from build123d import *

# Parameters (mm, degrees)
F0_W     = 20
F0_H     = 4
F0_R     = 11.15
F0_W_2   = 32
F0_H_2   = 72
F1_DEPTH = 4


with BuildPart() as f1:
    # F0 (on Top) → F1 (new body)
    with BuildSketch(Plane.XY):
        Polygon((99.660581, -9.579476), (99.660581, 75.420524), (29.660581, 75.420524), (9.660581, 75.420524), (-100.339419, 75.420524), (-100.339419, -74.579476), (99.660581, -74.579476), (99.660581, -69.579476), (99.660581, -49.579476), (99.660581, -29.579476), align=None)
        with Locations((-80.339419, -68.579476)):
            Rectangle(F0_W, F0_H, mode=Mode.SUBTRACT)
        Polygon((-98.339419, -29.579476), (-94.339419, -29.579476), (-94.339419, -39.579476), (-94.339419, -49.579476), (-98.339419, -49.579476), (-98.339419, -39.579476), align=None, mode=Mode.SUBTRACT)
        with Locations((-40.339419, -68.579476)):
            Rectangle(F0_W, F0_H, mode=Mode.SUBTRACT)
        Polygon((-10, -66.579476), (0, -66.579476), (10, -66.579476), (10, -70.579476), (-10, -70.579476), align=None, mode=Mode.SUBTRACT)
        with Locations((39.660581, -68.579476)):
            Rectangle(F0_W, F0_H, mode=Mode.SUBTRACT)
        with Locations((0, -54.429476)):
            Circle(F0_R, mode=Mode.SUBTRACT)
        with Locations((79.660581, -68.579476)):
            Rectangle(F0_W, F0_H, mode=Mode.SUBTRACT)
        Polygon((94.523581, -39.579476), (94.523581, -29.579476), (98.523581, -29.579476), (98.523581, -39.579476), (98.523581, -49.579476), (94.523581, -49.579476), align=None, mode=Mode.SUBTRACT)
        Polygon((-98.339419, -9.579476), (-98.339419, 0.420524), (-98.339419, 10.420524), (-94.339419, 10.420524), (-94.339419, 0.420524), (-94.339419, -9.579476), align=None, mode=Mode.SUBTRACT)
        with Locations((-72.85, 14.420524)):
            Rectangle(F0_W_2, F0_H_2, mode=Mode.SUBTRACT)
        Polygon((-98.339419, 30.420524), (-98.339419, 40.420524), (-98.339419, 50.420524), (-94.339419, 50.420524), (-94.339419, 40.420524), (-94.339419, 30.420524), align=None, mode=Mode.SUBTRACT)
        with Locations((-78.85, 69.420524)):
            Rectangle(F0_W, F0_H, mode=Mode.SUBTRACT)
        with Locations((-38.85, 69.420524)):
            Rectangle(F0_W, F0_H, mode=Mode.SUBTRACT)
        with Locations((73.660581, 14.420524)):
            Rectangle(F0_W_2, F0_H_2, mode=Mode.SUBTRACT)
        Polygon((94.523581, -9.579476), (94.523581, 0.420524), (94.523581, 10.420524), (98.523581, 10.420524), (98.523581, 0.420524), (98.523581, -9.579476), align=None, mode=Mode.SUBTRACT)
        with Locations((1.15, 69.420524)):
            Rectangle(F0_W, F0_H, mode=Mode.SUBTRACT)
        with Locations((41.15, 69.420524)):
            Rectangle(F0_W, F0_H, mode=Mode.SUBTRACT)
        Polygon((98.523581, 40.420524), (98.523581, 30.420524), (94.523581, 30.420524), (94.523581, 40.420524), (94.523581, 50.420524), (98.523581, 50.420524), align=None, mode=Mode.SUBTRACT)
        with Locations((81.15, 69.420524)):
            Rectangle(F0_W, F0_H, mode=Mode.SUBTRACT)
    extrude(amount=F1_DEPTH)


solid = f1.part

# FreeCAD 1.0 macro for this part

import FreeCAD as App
import Part
import Sketcher

V = App.Vector
Q = App.Units.Quantity

doc = App.newDocument("Part")
body = doc.addObject("PartDesign::Body", "Body")

sketch1 = body.newObject("Sketcher::SketchObject", "Sketch")
sketch1.AttachmentSupport = (doc.getObject("XY_Plane"), [""])
sketch1.MapMode = "FlatFace"
sketch1.addGeometry([
    Part.LineSegment(V(99.7, 75.4, 0), V(-100.3, 75.4, 0)),
    Part.LineSegment(V(-100.3, 75.4, 0), V(-100.3, -74.6, 0)),
    Part.LineSegment(V(-100.3, -74.6, 0), V(99.7, -74.6, 0)),
    Part.LineSegment(V(99.7, -74.6, 0), V(99.7, 75.4, 0)),
    Part.LineSegment(V(-70.3, -70.6, 0), V(-90.3, -70.6, 0)),
    Part.LineSegment(V(-90.3, -70.6, 0), V(-90.3, -66.6, 0)),
    Part.LineSegment(V(-90.3, -66.6, 0), V(-70.3, -66.6, 0)),
    Part.LineSegment(V(-70.3, -66.6, 0), V(-70.3, -70.6, 0)),
    Part.LineSegment(V(-98.3, -49.6, 0), V(-98.3, -29.6, 0)),
    Part.LineSegment(V(-98.3, -29.6, 0), V(-94.3, -29.6, 0)),
    Part.LineSegment(V(-94.3, -29.6, 0), V(-94.3, -49.6, 0)),
    Part.LineSegment(V(-94.3, -49.6, 0), V(-98.3, -49.6, 0)),
    Part.LineSegment(V(-30.3, -70.6, 0), V(-50.3, -70.6, 0)),
    Part.LineSegment(V(-50.3, -70.6, 0), V(-50.3, -66.6, 0)),
    Part.LineSegment(V(-50.3, -66.6, 0), V(-30.3, -66.6, 0)),
    Part.LineSegment(V(-30.3, -66.6, 0), V(-30.3, -70.6, 0)),
    Part.LineSegment(V(-10, -70.6, 0), V(-10, -66.6, 0)),
    Part.LineSegment(V(-10, -66.6, 0), V(10, -66.6, 0)),
    Part.LineSegment(V(10, -66.6, 0), V(10, -70.6, 0)),
    Part.LineSegment(V(10, -70.6, 0), V(-10, -70.6, 0)),
    Part.Circle(V(0, -54.4, 0), V(0, 0, 1), 11.2),
    Part.LineSegment(V(49.7, -70.6, 0), V(29.7, -70.6, 0)),
    Part.LineSegment(V(29.7, -70.6, 0), V(29.7, -66.6, 0)),
    Part.LineSegment(V(29.7, -66.6, 0), V(49.7, -66.6, 0)),
    Part.LineSegment(V(49.7, -66.6, 0), V(49.7, -70.6, 0)),
    Part.LineSegment(V(89.7, -70.6, 0), V(69.7, -70.6, 0)),
    Part.LineSegment(V(69.7, -70.6, 0), V(69.7, -66.6, 0)),
    Part.LineSegment(V(69.7, -66.6, 0), V(89.7, -66.6, 0)),
    Part.LineSegment(V(89.7, -66.6, 0), V(89.7, -70.6, 0)),
    Part.LineSegment(V(94.5, -49.6, 0), V(94.5, -29.6, 0)),
    Part.LineSegment(V(94.5, -29.6, 0), V(98.5, -29.6, 0)),
    Part.LineSegment(V(98.5, -29.6, 0), V(98.5, -49.6, 0)),
    Part.LineSegment(V(98.5, -49.6, 0), V(94.5, -49.6, 0)),
    Part.LineSegment(V(-94.3, -9.6, 0), V(-98.3, -9.6, 0)),
    Part.LineSegment(V(-98.3, -9.6, 0), V(-98.3, 10.4, 0)),
    Part.LineSegment(V(-98.3, 10.4, 0), V(-94.3, 10.4, 0)),
    Part.LineSegment(V(-94.3, 10.4, 0), V(-94.3, -9.6, 0)),
    Part.LineSegment(V(-56.9, -21.6, 0), V(-88.8, -21.6, 0)),
    Part.LineSegment(V(-88.8, -21.6, 0), V(-88.8, 50.4, 0)),
    Part.LineSegment(V(-88.8, 50.4, 0), V(-56.9, 50.4, 0)),
    Part.LineSegment(V(-56.9, 50.4, 0), V(-56.9, -21.6, 0)),
    Part.LineSegment(V(-94.3, 30.4, 0), V(-98.3, 30.4, 0)),
    Part.LineSegment(V(-98.3, 30.4, 0), V(-98.3, 50.4, 0)),
    Part.LineSegment(V(-98.3, 50.4, 0), V(-94.3, 50.4, 0)),
    Part.LineSegment(V(-94.3, 50.4, 0), V(-94.3, 30.4, 0)),
    Part.LineSegment(V(-68.8, 67.4, 0), V(-88.8, 67.4, 0)),
    Part.LineSegment(V(-88.8, 67.4, 0), V(-88.8, 71.4, 0)),
    Part.LineSegment(V(-88.8, 71.4, 0), V(-68.8, 71.4, 0)),
    Part.LineSegment(V(-68.8, 71.4, 0), V(-68.8, 67.4, 0)),
    Part.LineSegment(V(-28.9, 67.4, 0), V(-48.9, 67.4, 0)),
    Part.LineSegment(V(-48.9, 67.4, 0), V(-48.9, 71.4, 0)),
    Part.LineSegment(V(-48.9, 71.4, 0), V(-28.9, 71.4, 0)),
    Part.LineSegment(V(-28.9, 71.4, 0), V(-28.9, 67.4, 0)),
    Part.LineSegment(V(89.7, -21.6, 0), V(57.7, -21.6, 0)),
    Part.LineSegment(V(57.7, -21.6, 0), V(57.7, 50.4, 0)),
    Part.LineSegment(V(57.7, 50.4, 0), V(89.7, 50.4, 0)),
    Part.LineSegment(V(89.7, 50.4, 0), V(89.7, -21.6, 0)),
    Part.LineSegment(V(98.5, -9.6, 0), V(94.5, -9.6, 0)),
    Part.LineSegment(V(94.5, -9.6, 0), V(94.5, 10.4, 0)),
    Part.LineSegment(V(94.5, 10.4, 0), V(98.5, 10.4, 0)),
    Part.LineSegment(V(98.5, 10.4, 0), V(98.5, -9.6, 0)),
    Part.LineSegment(V(11.2, 67.4, 0), V(-8.8, 67.4, 0)),
    Part.LineSegment(V(-8.8, 67.4, 0), V(-8.8, 71.4, 0)),
    Part.LineSegment(V(-8.8, 71.4, 0), V(11.2, 71.4, 0)),
    Part.LineSegment(V(11.2, 71.4, 0), V(11.2, 67.4, 0)),
    Part.LineSegment(V(51.1, 67.4, 0), V(31.1, 67.4, 0)),
    Part.LineSegment(V(31.1, 67.4, 0), V(31.1, 71.4, 0)),
    Part.LineSegment(V(31.1, 71.4, 0), V(51.1, 71.4, 0)),
    Part.LineSegment(V(51.1, 71.4, 0), V(51.1, 67.4, 0)),
    Part.LineSegment(V(98.5, 50.4, 0), V(98.5, 30.4, 0)),
    Part.LineSegment(V(98.5, 30.4, 0), V(94.5, 30.4, 0)),
    Part.LineSegment(V(94.5, 30.4, 0), V(94.5, 50.4, 0)),
    Part.LineSegment(V(94.5, 50.4, 0), V(98.5, 50.4, 0)),
    Part.LineSegment(V(91.2, 67.4, 0), V(71.2, 67.4, 0)),
    Part.LineSegment(V(71.2, 67.4, 0), V(71.2, 71.4, 0)),
    Part.LineSegment(V(71.2, 71.4, 0), V(91.2, 71.4, 0)),
    Part.LineSegment(V(91.2, 71.4, 0), V(91.2, 67.4, 0)),
], False)
sketch1.addConstraint([
    Sketcher.Constraint("Coincident", 0, 2, 1, 1),
    Sketcher.Constraint("Coincident", 1, 2, 2, 1),
    Sketcher.Constraint("Coincident", 2, 2, 3, 1),
    Sketcher.Constraint("Coincident", 3, 2, 0, 1),
    Sketcher.Constraint("Coincident", 4, 2, 5, 1),
    Sketcher.Constraint("Coincident", 5, 2, 6, 1),
    Sketcher.Constraint("Coincident", 6, 2, 7, 1),
    Sketcher.Constraint("Coincident", 7, 2, 4, 1),
    Sketcher.Constraint("Coincident", 8, 2, 9, 1),
    Sketcher.Constraint("Coincident", 9, 2, 10, 1),
    Sketcher.Constraint("Coincident", 10, 2, 11, 1),
    Sketcher.Constraint("Coincident", 11, 2, 8, 1),
    Sketcher.Constraint("Coincident", 12, 2, 13, 1),
    Sketcher.Constraint("Coincident", 13, 2, 14, 1),
    Sketcher.Constraint("Coincident", 14, 2, 15, 1),
    Sketcher.Constraint("Coincident", 15, 2, 12, 1),
    Sketcher.Constraint("Coincident", 16, 2, 17, 1),
    Sketcher.Constraint("Coincident", 17, 2, 18, 1),
    Sketcher.Constraint("Coincident", 18, 2, 19, 1),
    Sketcher.Constraint("Coincident", 19, 2, 16, 1),
    Sketcher.Constraint("Coincident", 21, 2, 22, 1),
    Sketcher.Constraint("Coincident", 22, 2, 23, 1),
    Sketcher.Constraint("Coincident", 23, 2, 24, 1),
    Sketcher.Constraint("Coincident", 24, 2, 21, 1),
    Sketcher.Constraint("Coincident", 25, 2, 26, 1),
    Sketcher.Constraint("Coincident", 26, 2, 27, 1),
    Sketcher.Constraint("Coincident", 27, 2, 28, 1),
    Sketcher.Constraint("Coincident", 28, 2, 25, 1),
    Sketcher.Constraint("Coincident", 29, 2, 30, 1),
    Sketcher.Constraint("Coincident", 30, 2, 31, 1),
    Sketcher.Constraint("Coincident", 31, 2, 32, 1),
    Sketcher.Constraint("Coincident", 32, 2, 29, 1),
    Sketcher.Constraint("Coincident", 33, 2, 34, 1),
    Sketcher.Constraint("Coincident", 34, 2, 35, 1),
    Sketcher.Constraint("Coincident", 35, 2, 36, 1),
    Sketcher.Constraint("Coincident", 36, 2, 33, 1),
    Sketcher.Constraint("Coincident", 37, 2, 38, 1),
    Sketcher.Constraint("Coincident", 38, 2, 39, 1),
    Sketcher.Constraint("Coincident", 39, 2, 40, 1),
    Sketcher.Constraint("Coincident", 40, 2, 37, 1),
    Sketcher.Constraint("Coincident", 41, 2, 42, 1),
    Sketcher.Constraint("Coincident", 42, 2, 43, 1),
    Sketcher.Constraint("Coincident", 43, 2, 44, 1),
    Sketcher.Constraint("Coincident", 44, 2, 41, 1),
    Sketcher.Constraint("Coincident", 45, 2, 46, 1),
    Sketcher.Constraint("Coincident", 46, 2, 47, 1),
    Sketcher.Constraint("Coincident", 47, 2, 48, 1),
    Sketcher.Constraint("Coincident", 48, 2, 45, 1),
    Sketcher.Constraint("Coincident", 49, 2, 50, 1),
    Sketcher.Constraint("Coincident", 50, 2, 51, 1),
    Sketcher.Constraint("Coincident", 51, 2, 52, 1),
    Sketcher.Constraint("Coincident", 52, 2, 49, 1),
    Sketcher.Constraint("Coincident", 53, 2, 54, 1),
    Sketcher.Constraint("Coincident", 54, 2, 55, 1),
    Sketcher.Constraint("Coincident", 55, 2, 56, 1),
    Sketcher.Constraint("Coincident", 56, 2, 53, 1),
    Sketcher.Constraint("Coincident", 57, 2, 58, 1),
    Sketcher.Constraint("Coincident", 58, 2, 59, 1),
    Sketcher.Constraint("Coincident", 59, 2, 60, 1),
    Sketcher.Constraint("Coincident", 60, 2, 57, 1),
    Sketcher.Constraint("Coincident", 61, 2, 62, 1),
    Sketcher.Constraint("Coincident", 62, 2, 63, 1),
    Sketcher.Constraint("Coincident", 63, 2, 64, 1),
    Sketcher.Constraint("Coincident", 64, 2, 61, 1),
    Sketcher.Constraint("Coincident", 65, 2, 66, 1),
    Sketcher.Constraint("Coincident", 66, 2, 67, 1),
    Sketcher.Constraint("Coincident", 67, 2, 68, 1),
    Sketcher.Constraint("Coincident", 68, 2, 65, 1),
    Sketcher.Constraint("Coincident", 69, 2, 70, 1),
    Sketcher.Constraint("Coincident", 70, 2, 71, 1),
    Sketcher.Constraint("Coincident", 71, 2, 72, 1),
    Sketcher.Constraint("Coincident", 72, 2, 69, 1),
    Sketcher.Constraint("Coincident", 73, 2, 74, 1),
    Sketcher.Constraint("Coincident", 74, 2, 75, 1),
    Sketcher.Constraint("Coincident", 75, 2, 76, 1),
    Sketcher.Constraint("Coincident", 76, 2, 73, 1),
    Sketcher.Constraint("Horizontal", 0),
    Sketcher.Constraint("Vertical", 1),
    Sketcher.Constraint("Horizontal", 2),
    Sketcher.Constraint("Vertical", 3),
    Sketcher.Constraint("Horizontal", 4),
    Sketcher.Constraint("Vertical", 5),
    Sketcher.Constraint("Horizontal", 6),
    Sketcher.Constraint("Vertical", 7),
    Sketcher.Constraint("Vertical", 8),
    Sketcher.Constraint("Horizontal", 9),
    Sketcher.Constraint("Vertical", 10),
    Sketcher.Constraint("Horizontal", 11),
    Sketcher.Constraint("Horizontal", 12),
    Sketcher.Constraint("Vertical", 13),
    Sketcher.Constraint("Horizontal", 14),
    Sketcher.Constraint("Vertical", 15),
    Sketcher.Constraint("Vertical", 16),
    Sketcher.Constraint("Horizontal", 17),
    Sketcher.Constraint("Vertical", 18),
    Sketcher.Constraint("Horizontal", 19),
    Sketcher.Constraint("Horizontal", 21),
    Sketcher.Constraint("Vertical", 22),
    Sketcher.Constraint("Horizontal", 23),
    Sketcher.Constraint("Vertical", 24),
    Sketcher.Constraint("Horizontal", 25),
    Sketcher.Constraint("Vertical", 26),
    Sketcher.Constraint("Horizontal", 27),
    Sketcher.Constraint("Vertical", 28),
    Sketcher.Constraint("Vertical", 29),
    Sketcher.Constraint("Horizontal", 30),
    Sketcher.Constraint("Vertical", 31),
    Sketcher.Constraint("Horizontal", 32),
    Sketcher.Constraint("Horizontal", 33),
    Sketcher.Constraint("Vertical", 34),
    Sketcher.Constraint("Horizontal", 35),
    Sketcher.Constraint("Vertical", 36),
    Sketcher.Constraint("Horizontal", 37),
    Sketcher.Constraint("Vertical", 38),
    Sketcher.Constraint("Horizontal", 39),
    Sketcher.Constraint("Vertical", 40),
    Sketcher.Constraint("Horizontal", 41),
    Sketcher.Constraint("Vertical", 42),
    Sketcher.Constraint("Horizontal", 43),
    Sketcher.Constraint("Vertical", 44),
    Sketcher.Constraint("Horizontal", 45),
    Sketcher.Constraint("Vertical", 46),
    Sketcher.Constraint("Horizontal", 47),
    Sketcher.Constraint("Vertical", 48),
    Sketcher.Constraint("Horizontal", 49),
    Sketcher.Constraint("Vertical", 50),
    Sketcher.Constraint("Horizontal", 51),
    Sketcher.Constraint("Vertical", 52),
    Sketcher.Constraint("Horizontal", 53),
    Sketcher.Constraint("Vertical", 54),
    Sketcher.Constraint("Horizontal", 55),
    Sketcher.Constraint("Vertical", 56),
    Sketcher.Constraint("Horizontal", 57),
    Sketcher.Constraint("Vertical", 58),
    Sketcher.Constraint("Horizontal", 59),
    Sketcher.Constraint("Vertical", 60),
    Sketcher.Constraint("Horizontal", 61),
    Sketcher.Constraint("Vertical", 62),
    Sketcher.Constraint("Horizontal", 63),
    Sketcher.Constraint("Vertical", 64),
    Sketcher.Constraint("Horizontal", 65),
    Sketcher.Constraint("Vertical", 66),
    Sketcher.Constraint("Horizontal", 67),
    Sketcher.Constraint("Vertical", 68),
    Sketcher.Constraint("Vertical", 69),
    Sketcher.Constraint("Horizontal", 70),
    Sketcher.Constraint("Vertical", 71),
    Sketcher.Constraint("Horizontal", 72),
    Sketcher.Constraint("Horizontal", 73),
    Sketcher.Constraint("Vertical", 74),
    Sketcher.Constraint("Horizontal", 75),
    Sketcher.Constraint("Vertical", 76),
    Sketcher.Constraint("PointOnObject", 20, 3, -2),
    Sketcher.Constraint("Horizontal", 7, 2, 12, 2),
    Sketcher.Constraint("Horizontal", 6, 2, 13, 2),
    Sketcher.Constraint("Horizontal", 14, 2, 16, 2),
    Sketcher.Constraint("Horizontal", 15, 2, 18, 2),
    Sketcher.Constraint("Horizontal", 19, 2, 21, 2),
    Sketcher.Constraint("Horizontal", 17, 2, 22, 2),
    Sketcher.Constraint("Horizontal", 24, 2, 25, 2),
    Sketcher.Constraint("Horizontal", 23, 2, 26, 2),
    Sketcher.Constraint("Horizontal", 9, 2, 29, 2),
    Sketcher.Constraint("Horizontal", 11, 2, 31, 2),
    Sketcher.Constraint("Horizontal", 39, 2, 42, 2),
    Sketcher.Constraint("Horizontal", 48, 2, 49, 2),
    Sketcher.Constraint("Horizontal", 47, 2, 50, 2),
    Sketcher.Constraint("Horizontal", 40, 2, 53, 2),
    Sketcher.Constraint("Horizontal", 43, 2, 54, 2),
    Sketcher.Constraint("Horizontal", 36, 2, 57, 2),
    Sketcher.Constraint("Horizontal", 35, 2, 58, 2),
    Sketcher.Constraint("Horizontal", 52, 2, 61, 2),
    Sketcher.Constraint("Horizontal", 51, 2, 62, 2),
    Sketcher.Constraint("Horizontal", 64, 2, 65, 2),
    Sketcher.Constraint("Horizontal", 63, 2, 66, 2),
    Sketcher.Constraint("Horizontal", 44, 2, 69, 2),
    Sketcher.Constraint("Horizontal", 55, 2, 71, 2),
    Sketcher.Constraint("Horizontal", 68, 2, 73, 2),
    Sketcher.Constraint("Horizontal", 67, 2, 74, 2),
    Sketcher.Constraint("Vertical", 11, 2, 33, 2),
    Sketcher.Constraint("Vertical", 10, 2, 35, 2),
    Sketcher.Constraint("Vertical", 34, 2, 41, 2),
    Sketcher.Constraint("Vertical", 36, 2, 43, 2),
    Sketcher.Constraint("Vertical", 38, 2, 45, 2),
    Sketcher.Constraint("Vertical", 28, 2, 55, 2),
    Sketcher.Constraint("Vertical", 32, 2, 57, 2),
    Sketcher.Constraint("Vertical", 31, 2, 59, 2),
    Sketcher.Constraint("Vertical", 60, 2, 69, 2),
    Sketcher.Constraint("Vertical", 58, 2, 70, 2),
    Sketcher.Constraint("Equal", 6, 12),
    Sketcher.Constraint("Equal", 14, 17),
    Sketcher.Constraint("Equal", 19, 21),
    Sketcher.Constraint("Equal", 23, 25),
    Sketcher.Constraint("Equal", 11, 30),
    Sketcher.Constraint("Equal", 27, 45),
    Sketcher.Constraint("Equal", 47, 49),
    Sketcher.Constraint("Equal", 39, 53),
    Sketcher.Constraint("Equal", 51, 61),
    Sketcher.Constraint("Equal", 63, 65),
    Sketcher.Constraint("Equal", 67, 73),
    Sketcher.Constraint("Equal", 72, 5),
    Sketcher.Constraint("Equal", 75, 8),
    Sketcher.Constraint("Equal", 31, 34),
    Sketcher.Constraint("Equal", 36, 42),
    Sketcher.Constraint("Equal", 28, 46),
    Sketcher.Constraint("Diameter", 20, Q("22.3 mm")),
    Sketcher.Constraint("DistanceX", 0, 2, 0, 1, Q("200 mm")),
    Sketcher.Constraint("DistanceX", 4, 2, 4, 1, Q("20 mm")),
    Sketcher.Constraint("DistanceX", 9, 1, 9, 2, Q("4 mm")),
    Sketcher.Constraint("DistanceX", 37, 2, 37, 1, Q("32 mm")),
    Sketcher.Constraint("DistanceY", 1, 2, 1, 1, Q("150 mm")),
    Sketcher.Constraint("DistanceY", 38, 1, 38, 2, Q("72 mm")),
    Sketcher.Constraint("DistanceX", 16, 2, -1, 1, Q("10 mm")),
    Sketcher.Constraint("DistanceX", 37, 2, -1, 1, Q("88.85 mm")),
    Sketcher.Constraint("DistanceX", 49, 2, -1, 1, Q("48.85 mm")),
    Sketcher.Constraint("DistanceX", 61, 2, -1, 1, Q("8.85 mm")),
    Sketcher.Constraint("DistanceX", -1, 1, 65, 2, Q("31.15 mm")),
    Sketcher.Constraint("DistanceX", -1, 1, 73, 2, Q("71.15 mm")),
    Sketcher.Constraint("DistanceX", 0, 2, -1, 1, Q("100.339419 mm")),
    Sketcher.Constraint("DistanceX", 4, 2, -1, 1, Q("90.339419 mm")),
    Sketcher.Constraint("DistanceX", 8, 2, -1, 1, Q("98.339419 mm")),
    Sketcher.Constraint("DistanceX", 12, 2, -1, 1, Q("50.339419 mm")),
    Sketcher.Constraint("DistanceX", -1, 1, 21, 2, Q("29.660581 mm")),
    Sketcher.Constraint("DistanceX", -1, 1, 25, 2, Q("69.660581 mm")),
    Sketcher.Constraint("DistanceX", -1, 1, 29, 2, Q("94.523581 mm")),
    Sketcher.Constraint("DistanceY", 20, 3, -1, 1, Q("54.429476 mm")),
    Sketcher.Constraint("DistanceY", -1, 1, 0, 2, Q("75.420524 mm")),
    Sketcher.Constraint("DistanceY", 4, 2, -1, 1, Q("70.579476 mm")),
    Sketcher.Constraint("DistanceY", 8, 2, -1, 1, Q("29.579476 mm")),
    Sketcher.Constraint("DistanceY", 33, 2, -1, 1, Q("9.579476 mm")),
    Sketcher.Constraint("DistanceY", 37, 2, -1, 1, Q("21.579476 mm")),
    Sketcher.Constraint("DistanceY", -1, 1, 45, 2, Q("67.420524 mm")),
])
pad1 = body.newObject("PartDesign::Pad", "Pad")
pad1.Profile = sketch1
pad1.Length = 4

doc.recompute()
